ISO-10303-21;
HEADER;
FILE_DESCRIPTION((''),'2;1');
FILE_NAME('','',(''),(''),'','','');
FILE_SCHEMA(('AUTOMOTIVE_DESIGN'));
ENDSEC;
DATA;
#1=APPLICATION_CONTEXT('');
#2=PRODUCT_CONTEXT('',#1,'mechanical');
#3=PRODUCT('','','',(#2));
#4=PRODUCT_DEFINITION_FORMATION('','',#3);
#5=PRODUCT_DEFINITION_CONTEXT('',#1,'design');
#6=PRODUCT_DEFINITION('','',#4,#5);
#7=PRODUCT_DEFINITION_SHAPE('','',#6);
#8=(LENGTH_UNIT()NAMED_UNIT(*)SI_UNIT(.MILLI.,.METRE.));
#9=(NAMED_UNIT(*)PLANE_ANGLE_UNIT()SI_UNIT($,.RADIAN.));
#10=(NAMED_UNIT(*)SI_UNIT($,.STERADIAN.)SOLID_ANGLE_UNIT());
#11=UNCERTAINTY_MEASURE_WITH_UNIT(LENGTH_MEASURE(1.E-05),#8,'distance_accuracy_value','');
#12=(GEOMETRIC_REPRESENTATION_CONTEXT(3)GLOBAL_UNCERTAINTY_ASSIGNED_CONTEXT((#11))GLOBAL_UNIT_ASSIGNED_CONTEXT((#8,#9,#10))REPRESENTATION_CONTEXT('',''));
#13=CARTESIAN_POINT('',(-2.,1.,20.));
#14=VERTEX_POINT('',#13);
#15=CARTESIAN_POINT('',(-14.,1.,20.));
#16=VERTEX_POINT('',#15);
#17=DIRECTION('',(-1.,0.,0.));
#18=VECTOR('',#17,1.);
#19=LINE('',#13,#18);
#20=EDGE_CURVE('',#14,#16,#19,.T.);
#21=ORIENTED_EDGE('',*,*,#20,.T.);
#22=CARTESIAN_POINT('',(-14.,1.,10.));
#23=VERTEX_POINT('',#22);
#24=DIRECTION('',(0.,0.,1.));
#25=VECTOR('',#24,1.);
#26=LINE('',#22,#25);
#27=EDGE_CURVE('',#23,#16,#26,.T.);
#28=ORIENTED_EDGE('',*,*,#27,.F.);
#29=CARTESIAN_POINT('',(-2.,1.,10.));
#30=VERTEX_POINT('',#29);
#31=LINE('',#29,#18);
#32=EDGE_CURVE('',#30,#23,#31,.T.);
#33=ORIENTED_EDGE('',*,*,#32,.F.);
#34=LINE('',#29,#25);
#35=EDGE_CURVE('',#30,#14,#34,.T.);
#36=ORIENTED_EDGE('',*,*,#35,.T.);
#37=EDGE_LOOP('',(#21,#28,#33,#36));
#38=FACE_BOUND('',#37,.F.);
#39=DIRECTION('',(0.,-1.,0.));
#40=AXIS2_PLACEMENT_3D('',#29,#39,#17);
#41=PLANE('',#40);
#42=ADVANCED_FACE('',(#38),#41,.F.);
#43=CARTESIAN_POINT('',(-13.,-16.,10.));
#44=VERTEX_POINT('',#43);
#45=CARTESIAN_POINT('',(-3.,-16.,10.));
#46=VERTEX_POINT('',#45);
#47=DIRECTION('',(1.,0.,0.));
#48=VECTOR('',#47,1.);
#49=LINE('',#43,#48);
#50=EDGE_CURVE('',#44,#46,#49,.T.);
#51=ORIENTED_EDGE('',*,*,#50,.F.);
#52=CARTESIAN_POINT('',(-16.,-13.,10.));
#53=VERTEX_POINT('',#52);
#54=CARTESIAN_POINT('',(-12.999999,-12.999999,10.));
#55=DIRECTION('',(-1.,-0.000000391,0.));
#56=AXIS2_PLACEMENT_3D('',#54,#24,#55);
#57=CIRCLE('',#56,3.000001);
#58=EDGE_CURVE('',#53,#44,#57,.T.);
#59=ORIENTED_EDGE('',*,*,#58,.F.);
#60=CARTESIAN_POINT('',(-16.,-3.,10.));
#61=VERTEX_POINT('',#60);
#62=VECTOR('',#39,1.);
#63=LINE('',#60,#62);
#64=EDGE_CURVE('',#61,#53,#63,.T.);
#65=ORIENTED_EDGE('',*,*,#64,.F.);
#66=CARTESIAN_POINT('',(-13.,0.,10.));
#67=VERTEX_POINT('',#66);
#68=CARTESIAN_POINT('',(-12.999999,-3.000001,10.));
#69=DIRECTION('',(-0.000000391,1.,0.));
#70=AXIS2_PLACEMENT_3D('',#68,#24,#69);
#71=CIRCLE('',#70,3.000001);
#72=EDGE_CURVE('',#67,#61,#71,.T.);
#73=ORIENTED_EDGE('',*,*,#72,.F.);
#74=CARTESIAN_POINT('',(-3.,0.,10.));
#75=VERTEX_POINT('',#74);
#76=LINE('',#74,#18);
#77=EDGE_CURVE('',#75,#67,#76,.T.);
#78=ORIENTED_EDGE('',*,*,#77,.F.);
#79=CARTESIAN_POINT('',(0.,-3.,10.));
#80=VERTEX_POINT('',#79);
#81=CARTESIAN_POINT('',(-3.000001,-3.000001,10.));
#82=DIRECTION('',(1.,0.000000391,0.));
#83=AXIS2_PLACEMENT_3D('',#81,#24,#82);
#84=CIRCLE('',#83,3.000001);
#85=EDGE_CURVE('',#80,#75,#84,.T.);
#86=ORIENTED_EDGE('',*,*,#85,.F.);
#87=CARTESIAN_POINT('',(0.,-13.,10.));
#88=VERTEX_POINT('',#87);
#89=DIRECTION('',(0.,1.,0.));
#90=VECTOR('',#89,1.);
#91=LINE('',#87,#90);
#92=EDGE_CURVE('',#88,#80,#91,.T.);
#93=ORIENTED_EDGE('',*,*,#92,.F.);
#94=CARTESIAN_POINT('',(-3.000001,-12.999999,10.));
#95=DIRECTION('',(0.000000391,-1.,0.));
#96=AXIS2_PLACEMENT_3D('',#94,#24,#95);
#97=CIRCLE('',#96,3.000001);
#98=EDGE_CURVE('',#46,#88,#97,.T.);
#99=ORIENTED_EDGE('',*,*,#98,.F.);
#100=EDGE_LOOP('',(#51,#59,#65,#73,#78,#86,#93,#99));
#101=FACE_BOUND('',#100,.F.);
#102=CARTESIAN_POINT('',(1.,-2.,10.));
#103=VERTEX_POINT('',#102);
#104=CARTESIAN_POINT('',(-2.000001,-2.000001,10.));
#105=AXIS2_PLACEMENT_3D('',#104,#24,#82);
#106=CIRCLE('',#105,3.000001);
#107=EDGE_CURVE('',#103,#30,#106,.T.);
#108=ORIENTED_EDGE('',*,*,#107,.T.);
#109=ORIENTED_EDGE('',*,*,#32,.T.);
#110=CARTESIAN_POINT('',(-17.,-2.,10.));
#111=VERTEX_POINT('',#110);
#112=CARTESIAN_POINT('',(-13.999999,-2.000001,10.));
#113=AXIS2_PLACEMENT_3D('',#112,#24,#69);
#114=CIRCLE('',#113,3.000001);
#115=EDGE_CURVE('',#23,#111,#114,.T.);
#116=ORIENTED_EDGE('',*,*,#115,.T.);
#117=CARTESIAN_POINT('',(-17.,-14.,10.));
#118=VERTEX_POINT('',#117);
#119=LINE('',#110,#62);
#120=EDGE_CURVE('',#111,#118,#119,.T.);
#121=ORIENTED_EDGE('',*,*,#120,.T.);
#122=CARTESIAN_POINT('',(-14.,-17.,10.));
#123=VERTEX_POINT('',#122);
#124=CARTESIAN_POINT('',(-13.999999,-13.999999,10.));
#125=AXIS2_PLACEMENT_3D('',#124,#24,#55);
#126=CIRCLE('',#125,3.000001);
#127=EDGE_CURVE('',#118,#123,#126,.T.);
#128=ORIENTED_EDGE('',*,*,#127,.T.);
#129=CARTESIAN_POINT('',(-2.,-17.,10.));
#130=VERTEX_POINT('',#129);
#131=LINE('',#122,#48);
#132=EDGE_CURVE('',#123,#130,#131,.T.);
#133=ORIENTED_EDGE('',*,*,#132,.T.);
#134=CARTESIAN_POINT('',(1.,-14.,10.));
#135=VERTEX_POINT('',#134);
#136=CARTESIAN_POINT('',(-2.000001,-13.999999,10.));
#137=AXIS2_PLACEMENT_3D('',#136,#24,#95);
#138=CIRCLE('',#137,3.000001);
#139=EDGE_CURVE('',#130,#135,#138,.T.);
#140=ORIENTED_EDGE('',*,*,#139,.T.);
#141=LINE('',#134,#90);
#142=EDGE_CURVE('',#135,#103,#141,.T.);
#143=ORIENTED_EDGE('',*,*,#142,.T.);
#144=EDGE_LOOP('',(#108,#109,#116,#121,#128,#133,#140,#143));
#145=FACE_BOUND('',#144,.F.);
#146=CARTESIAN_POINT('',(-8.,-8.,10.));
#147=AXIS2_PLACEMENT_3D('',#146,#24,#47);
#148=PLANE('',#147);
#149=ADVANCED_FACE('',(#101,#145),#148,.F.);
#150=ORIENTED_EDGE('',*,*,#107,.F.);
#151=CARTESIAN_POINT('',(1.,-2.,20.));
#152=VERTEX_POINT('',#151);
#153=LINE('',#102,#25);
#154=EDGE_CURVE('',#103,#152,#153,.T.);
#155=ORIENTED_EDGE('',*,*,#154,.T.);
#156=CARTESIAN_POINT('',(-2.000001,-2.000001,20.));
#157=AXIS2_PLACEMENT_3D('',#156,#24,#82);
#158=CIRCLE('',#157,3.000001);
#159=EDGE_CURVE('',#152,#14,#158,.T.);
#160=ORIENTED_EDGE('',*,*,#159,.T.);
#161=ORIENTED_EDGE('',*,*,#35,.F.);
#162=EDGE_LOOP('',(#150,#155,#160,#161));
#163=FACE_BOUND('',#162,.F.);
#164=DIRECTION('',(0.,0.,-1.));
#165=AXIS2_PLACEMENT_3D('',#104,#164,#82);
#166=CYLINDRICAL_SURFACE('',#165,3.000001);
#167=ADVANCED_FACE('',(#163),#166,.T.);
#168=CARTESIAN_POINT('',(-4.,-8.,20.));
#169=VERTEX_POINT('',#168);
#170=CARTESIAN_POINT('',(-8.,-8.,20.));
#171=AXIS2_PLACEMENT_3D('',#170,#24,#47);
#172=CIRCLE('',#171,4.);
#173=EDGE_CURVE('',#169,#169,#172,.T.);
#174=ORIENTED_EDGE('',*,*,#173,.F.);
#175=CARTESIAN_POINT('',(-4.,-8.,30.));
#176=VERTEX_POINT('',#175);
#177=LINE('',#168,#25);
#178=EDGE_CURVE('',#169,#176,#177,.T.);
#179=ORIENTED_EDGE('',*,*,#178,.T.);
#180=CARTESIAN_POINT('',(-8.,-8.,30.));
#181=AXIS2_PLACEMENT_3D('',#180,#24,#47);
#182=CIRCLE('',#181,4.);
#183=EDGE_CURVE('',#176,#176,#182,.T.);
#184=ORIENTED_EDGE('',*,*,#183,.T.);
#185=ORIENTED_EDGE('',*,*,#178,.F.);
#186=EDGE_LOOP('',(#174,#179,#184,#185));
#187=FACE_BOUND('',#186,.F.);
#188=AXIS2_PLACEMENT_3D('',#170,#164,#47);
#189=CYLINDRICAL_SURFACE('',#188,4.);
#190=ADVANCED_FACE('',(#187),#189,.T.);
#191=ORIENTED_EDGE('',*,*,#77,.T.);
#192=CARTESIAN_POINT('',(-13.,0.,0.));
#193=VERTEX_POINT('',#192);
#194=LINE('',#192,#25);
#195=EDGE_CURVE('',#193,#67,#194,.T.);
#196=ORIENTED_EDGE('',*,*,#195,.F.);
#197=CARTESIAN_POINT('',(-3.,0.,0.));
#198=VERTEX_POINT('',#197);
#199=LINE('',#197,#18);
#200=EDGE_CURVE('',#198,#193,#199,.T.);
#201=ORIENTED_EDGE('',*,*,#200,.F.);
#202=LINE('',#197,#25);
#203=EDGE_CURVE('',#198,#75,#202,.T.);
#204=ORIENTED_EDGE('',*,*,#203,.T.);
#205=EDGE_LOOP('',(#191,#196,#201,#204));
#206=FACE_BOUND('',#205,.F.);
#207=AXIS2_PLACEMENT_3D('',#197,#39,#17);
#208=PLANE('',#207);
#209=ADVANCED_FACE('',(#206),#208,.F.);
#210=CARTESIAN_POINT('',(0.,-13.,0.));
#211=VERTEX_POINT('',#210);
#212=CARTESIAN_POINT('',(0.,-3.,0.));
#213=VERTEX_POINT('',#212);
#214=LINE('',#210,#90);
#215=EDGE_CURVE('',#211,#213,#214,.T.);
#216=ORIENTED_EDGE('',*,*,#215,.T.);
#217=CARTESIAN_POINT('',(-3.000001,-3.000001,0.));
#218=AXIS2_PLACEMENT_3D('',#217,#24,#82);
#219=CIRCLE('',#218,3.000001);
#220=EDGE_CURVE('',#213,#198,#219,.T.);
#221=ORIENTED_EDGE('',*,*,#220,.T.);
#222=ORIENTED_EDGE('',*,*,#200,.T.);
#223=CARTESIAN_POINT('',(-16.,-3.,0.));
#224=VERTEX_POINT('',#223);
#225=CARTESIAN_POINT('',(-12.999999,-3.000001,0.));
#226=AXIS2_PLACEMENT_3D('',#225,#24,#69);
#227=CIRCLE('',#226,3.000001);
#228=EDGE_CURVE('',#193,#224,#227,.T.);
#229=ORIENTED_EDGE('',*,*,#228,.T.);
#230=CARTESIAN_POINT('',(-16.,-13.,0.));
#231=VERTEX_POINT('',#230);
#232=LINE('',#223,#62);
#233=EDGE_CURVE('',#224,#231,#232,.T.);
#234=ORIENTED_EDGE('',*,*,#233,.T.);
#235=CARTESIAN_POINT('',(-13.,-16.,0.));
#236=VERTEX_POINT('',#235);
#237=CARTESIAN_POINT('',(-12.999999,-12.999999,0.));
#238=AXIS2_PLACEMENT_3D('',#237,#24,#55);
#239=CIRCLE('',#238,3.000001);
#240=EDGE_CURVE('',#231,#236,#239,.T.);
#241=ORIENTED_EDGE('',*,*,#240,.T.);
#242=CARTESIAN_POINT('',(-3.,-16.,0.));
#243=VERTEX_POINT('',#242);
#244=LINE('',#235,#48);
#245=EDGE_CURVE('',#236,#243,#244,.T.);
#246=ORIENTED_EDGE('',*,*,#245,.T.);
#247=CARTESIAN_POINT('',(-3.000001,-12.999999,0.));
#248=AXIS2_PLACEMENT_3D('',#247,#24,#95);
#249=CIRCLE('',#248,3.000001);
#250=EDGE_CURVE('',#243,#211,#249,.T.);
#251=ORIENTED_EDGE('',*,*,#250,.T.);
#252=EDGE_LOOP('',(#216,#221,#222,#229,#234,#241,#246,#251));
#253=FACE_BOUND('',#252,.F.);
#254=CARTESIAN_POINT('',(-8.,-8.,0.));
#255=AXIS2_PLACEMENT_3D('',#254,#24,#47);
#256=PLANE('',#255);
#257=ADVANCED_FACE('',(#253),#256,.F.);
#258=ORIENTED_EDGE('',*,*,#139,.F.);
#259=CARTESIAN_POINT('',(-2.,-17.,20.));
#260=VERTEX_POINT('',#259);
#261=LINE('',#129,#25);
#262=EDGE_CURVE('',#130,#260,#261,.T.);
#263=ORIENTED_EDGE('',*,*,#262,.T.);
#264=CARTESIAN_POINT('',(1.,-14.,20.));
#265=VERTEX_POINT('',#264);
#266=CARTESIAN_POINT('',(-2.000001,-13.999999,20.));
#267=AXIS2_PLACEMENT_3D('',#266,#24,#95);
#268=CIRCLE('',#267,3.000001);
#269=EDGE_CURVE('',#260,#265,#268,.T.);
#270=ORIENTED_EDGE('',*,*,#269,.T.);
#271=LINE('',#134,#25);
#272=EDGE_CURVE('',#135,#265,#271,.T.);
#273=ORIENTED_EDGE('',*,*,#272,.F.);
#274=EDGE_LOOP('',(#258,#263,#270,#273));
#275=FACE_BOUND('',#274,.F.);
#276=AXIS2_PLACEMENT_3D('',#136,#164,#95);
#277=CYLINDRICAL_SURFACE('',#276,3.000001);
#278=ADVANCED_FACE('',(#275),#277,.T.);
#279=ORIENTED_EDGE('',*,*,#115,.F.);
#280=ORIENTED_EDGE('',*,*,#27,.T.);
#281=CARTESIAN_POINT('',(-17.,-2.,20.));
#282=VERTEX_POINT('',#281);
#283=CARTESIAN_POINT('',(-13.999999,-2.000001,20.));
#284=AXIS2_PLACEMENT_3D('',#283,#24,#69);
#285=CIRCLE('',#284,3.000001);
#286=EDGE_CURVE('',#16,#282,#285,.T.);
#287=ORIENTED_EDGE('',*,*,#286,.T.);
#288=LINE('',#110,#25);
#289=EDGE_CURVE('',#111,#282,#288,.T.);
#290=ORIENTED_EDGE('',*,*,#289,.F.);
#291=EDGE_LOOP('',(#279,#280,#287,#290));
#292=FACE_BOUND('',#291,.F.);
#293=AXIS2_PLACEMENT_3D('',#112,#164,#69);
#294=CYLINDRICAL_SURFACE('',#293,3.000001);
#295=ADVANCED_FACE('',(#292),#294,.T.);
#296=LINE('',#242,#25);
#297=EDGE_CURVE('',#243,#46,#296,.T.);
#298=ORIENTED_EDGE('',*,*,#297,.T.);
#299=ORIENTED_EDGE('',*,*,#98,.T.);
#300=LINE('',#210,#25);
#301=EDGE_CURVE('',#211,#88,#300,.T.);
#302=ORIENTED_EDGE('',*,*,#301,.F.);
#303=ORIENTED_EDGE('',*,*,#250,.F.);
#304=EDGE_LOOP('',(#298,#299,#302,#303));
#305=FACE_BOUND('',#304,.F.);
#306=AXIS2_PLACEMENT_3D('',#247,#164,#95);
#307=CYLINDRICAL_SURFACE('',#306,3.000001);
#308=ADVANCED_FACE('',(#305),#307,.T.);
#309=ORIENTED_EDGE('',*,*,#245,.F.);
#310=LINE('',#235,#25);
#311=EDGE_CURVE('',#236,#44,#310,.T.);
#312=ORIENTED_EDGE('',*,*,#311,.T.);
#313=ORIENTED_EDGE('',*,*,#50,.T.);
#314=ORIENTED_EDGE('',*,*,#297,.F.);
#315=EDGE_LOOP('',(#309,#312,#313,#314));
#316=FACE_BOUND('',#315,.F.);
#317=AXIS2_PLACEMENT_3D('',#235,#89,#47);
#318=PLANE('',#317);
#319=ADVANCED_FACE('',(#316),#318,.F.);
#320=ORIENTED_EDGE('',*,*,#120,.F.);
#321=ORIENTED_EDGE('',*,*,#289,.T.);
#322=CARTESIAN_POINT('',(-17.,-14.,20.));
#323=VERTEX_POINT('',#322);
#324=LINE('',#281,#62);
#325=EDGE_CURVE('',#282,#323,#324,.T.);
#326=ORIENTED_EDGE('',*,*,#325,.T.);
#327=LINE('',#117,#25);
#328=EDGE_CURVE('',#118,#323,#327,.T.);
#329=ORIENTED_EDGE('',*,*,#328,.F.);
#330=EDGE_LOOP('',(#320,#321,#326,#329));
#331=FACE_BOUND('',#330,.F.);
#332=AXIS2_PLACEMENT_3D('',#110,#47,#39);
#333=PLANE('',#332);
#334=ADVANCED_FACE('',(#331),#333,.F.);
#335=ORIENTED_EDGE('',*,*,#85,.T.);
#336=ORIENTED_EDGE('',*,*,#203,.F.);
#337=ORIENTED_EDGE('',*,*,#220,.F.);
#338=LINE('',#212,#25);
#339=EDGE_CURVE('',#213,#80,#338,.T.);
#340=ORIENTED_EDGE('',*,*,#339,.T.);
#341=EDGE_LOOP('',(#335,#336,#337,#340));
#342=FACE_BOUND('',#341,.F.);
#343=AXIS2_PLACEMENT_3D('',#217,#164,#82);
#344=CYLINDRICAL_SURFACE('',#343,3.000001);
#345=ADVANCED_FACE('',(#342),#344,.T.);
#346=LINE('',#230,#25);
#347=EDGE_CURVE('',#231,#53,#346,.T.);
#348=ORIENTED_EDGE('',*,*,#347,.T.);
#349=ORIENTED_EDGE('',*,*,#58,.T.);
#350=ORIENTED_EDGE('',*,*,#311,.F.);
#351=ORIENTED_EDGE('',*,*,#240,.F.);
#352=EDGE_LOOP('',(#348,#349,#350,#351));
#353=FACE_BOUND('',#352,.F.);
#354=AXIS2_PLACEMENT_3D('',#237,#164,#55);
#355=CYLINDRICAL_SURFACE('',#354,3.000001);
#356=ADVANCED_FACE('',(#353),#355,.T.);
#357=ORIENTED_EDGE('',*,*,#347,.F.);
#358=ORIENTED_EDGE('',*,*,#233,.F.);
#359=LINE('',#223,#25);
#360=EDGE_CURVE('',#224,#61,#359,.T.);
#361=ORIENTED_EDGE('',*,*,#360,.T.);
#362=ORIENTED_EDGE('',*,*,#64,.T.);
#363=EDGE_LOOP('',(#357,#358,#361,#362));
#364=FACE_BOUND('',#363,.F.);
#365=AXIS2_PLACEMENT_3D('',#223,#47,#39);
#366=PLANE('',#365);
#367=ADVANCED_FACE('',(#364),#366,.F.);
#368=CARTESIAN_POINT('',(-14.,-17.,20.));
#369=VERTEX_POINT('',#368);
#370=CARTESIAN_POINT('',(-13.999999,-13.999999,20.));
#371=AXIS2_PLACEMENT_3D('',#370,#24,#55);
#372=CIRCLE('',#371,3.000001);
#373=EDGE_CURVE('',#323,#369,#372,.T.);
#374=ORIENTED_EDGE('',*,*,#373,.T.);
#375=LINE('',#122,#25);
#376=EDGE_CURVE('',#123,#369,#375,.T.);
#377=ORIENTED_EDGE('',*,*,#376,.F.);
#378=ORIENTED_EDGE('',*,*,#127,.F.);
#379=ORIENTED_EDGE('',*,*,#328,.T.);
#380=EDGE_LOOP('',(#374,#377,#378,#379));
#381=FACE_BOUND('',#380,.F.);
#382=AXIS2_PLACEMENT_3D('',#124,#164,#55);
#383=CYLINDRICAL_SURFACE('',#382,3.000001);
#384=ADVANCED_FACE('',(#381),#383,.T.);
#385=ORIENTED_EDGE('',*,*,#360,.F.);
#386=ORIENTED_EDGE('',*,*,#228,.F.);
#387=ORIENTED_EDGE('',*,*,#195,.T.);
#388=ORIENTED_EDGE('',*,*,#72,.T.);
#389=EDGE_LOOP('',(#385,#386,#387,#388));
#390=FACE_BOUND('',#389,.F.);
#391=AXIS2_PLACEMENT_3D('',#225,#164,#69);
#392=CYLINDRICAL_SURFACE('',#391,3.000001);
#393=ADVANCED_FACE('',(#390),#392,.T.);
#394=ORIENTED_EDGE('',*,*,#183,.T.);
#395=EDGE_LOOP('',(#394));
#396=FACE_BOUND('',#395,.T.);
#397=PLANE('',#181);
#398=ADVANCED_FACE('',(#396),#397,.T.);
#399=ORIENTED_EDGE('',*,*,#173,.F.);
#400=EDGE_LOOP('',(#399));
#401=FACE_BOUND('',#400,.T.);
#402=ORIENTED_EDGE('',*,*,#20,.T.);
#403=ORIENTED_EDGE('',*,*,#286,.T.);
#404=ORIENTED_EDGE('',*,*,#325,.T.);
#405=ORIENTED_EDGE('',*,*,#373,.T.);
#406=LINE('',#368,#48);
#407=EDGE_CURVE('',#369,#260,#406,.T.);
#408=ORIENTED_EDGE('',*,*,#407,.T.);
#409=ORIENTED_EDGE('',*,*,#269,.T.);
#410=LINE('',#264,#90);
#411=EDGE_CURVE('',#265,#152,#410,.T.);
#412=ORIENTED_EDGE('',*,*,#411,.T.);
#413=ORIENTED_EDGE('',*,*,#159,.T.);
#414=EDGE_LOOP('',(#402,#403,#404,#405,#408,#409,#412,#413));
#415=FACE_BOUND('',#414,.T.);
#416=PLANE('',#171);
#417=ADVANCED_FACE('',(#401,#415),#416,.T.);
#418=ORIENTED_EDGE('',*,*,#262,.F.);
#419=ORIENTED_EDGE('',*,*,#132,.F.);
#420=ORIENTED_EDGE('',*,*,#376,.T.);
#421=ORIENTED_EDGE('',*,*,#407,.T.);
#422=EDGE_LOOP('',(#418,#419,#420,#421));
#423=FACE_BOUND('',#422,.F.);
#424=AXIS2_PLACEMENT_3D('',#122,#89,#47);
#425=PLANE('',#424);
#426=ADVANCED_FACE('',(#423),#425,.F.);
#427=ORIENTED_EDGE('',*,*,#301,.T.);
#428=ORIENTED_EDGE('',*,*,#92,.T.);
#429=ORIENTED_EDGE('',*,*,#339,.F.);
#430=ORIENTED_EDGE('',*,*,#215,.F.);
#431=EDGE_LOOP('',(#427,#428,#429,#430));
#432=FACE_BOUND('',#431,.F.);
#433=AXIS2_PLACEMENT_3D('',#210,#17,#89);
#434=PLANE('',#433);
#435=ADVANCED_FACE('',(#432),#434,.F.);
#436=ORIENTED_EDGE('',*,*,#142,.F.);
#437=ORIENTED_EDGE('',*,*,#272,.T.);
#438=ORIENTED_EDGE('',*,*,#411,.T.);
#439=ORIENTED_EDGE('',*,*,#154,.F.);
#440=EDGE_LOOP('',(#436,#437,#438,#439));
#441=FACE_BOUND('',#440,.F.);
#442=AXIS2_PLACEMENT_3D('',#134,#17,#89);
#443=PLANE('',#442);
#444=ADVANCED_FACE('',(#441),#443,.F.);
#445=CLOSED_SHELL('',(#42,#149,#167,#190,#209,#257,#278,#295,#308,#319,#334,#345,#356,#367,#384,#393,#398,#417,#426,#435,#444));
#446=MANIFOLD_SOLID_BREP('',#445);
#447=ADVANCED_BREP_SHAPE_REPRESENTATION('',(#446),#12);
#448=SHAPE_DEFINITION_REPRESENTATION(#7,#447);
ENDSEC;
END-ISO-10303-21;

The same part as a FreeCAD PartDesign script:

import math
import FreeCAD as App
import Part
import Sketcher
from FreeCAD import Vector

doc = App.newDocument("Part")
body = doc.addObject("PartDesign::Body", "Body")

# Sketch on XY plane
sketch1 = doc.addObject("Sketcher::SketchObject", "Sketch")
body.addObject(sketch1)
sketch1.AttachmentSupport = (doc.XY_Plane, [""])
sketch1.MapMode = "FlatFace"
sketch1.addGeometry([
    Part.ArcOfCircle(Part.Circle(Vector(-3.000001, -3.000001, 0), Vector(0, 0, 1), 3.000001), math.radians(0.000022), math.radians(89.999978)),  # 0
    Part.LineSegment(Vector(-3, 0, 0), Vector(-13, 0, 0)),  # 1
    Part.ArcOfCircle(Part.Circle(Vector(-12.999999, -3.000001, 0), Vector(0, 0, 1), 3.000001), math.radians(90.000022), math.radians(179.999978)),  # 2
    Part.LineSegment(Vector(-16, -3, 0), Vector(-16, -13, 0)),  # 3
    Part.ArcOfCircle(Part.Circle(Vector(-12.999999, -12.999999, 0), Vector(0, 0, 1), 3.000001), math.radians(-179.999978), math.radians(-90.000022)),  # 4
    Part.LineSegment(Vector(-13, -16, 0), Vector(-3, -16, 0)),  # 5
    Part.ArcOfCircle(Part.Circle(Vector(-3.000001, -12.999999, 0), Vector(0, 0, 1), 3.000001), math.radians(-89.999978), math.radians(-0.000022)),  # 6
    Part.LineSegment(Vector(0, -13, 0), Vector(0, -3, 0)),  # 7
], False)
sketch1.addConstraint([
    Sketcher.Constraint("Tangent", 0, 2, 1, 1),
    Sketcher.Constraint("Tangent", 1, 2, 2, 1),
    Sketcher.Constraint("Tangent", 2, 2, 3, 1),
    Sketcher.Constraint("Tangent", 3, 2, 4, 1),
    Sketcher.Constraint("Tangent", 4, 2, 5, 1),
    Sketcher.Constraint("Tangent", 5, 2, 6, 1),
    Sketcher.Constraint("Tangent", 6, 2, 7, 1),
    Sketcher.Constraint("Tangent", 7, 2, 0, 1),
    Sketcher.Constraint("Horizontal", 1),
    Sketcher.Constraint("Vertical", 3),
    Sketcher.Constraint("Horizontal", 5),
    Sketcher.Constraint("Vertical", 7),
    Sketcher.Constraint("Equal", 0, 2),
    Sketcher.Constraint("Equal", 2, 4),
    Sketcher.Constraint("Equal", 4, 6),
    Sketcher.Constraint("PointOnObject", 0, 2, -1),
    Sketcher.Constraint("PointOnObject", 6, 2, -2),
    Sketcher.Constraint("Equal", 5, 3),
    Sketcher.Constraint("Radius", 0, 3.000001),
    Sketcher.Constraint("DistanceX", 1, 2, 1, 1, 10.0),
])
pad1 = doc.addObject("PartDesign::Pad", "Pad")
body.addObject(pad1)
pad1.Profile = sketch1
pad1.Length = 10

# Sketch on XY plane
sketch2 = doc.addObject("Sketcher::SketchObject", "Sketch001")
body.addObject(sketch2)
sketch2.AttachmentSupport = (doc.XY_Plane, [""])
sketch2.MapMode = "FlatFace"
sketch2.AttachmentOffset = App.Placement(Vector(0, 0, 10), App.Rotation())
sketch2.addGeometry([
    Part.LineSegment(Vector(-2, 1, 0), Vector(-14, 1, 0)),  # 0
    Part.ArcOfCircle(Part.Circle(Vector(-13.999999, -2.000001, 0), Vector(0, 0, 1), 3.000001), math.radians(90.000022), math.radians(179.999978)),  # 1
    Part.LineSegment(Vector(-17, -2, 0), Vector(-17, -14, 0)),  # 2
    Part.ArcOfCircle(Part.Circle(Vector(-13.999999, -13.999999, 0), Vector(0, 0, 1), 3.000001), math.radians(-179.999978), math.radians(-90.000022)),  # 3
    Part.LineSegment(Vector(-14, -17, 0), Vector(-2, -17, 0)),  # 4
    Part.ArcOfCircle(Part.Circle(Vector(-2.000001, -13.999999, 0), Vector(0, 0, 1), 3.000001), math.radians(-89.999978), math.radians(-0.000022)),  # 5
    Part.LineSegment(Vector(1, -14, 0), Vector(1, -2, 0)),  # 6
    Part.ArcOfCircle(Part.Circle(Vector(-2.000001, -2.000001, 0), Vector(0, 0, 1), 3.000001), math.radians(0.000022), math.radians(89.999978)),  # 7
], False)
sketch2.addConstraint([
    Sketcher.Constraint("Tangent", 0, 2, 1, 1),
    Sketcher.Constraint("Tangent", 1, 2, 2, 1),
    Sketcher.Constraint("Tangent", 2, 2, 3, 1),
    Sketcher.Constraint("Tangent", 3, 2, 4, 1),
    Sketcher.Constraint("Tangent", 4, 2, 5, 1),
    Sketcher.Constraint("Tangent", 5, 2, 6, 1),
    Sketcher.Constraint("Tangent", 6, 2, 7, 1),
    Sketcher.Constraint("Tangent", 7, 2, 0, 1),
    Sketcher.Constraint("Horizontal", 0),
    Sketcher.Constraint("Vertical", 2),
    Sketcher.Constraint("Horizontal", 4),
    Sketcher.Constraint("Vertical", 6),
    Sketcher.Constraint("Equal", 1, 3),
    Sketcher.Constraint("Equal", 3, 5),
    Sketcher.Constraint("Equal", 5, 7),
    Sketcher.Constraint("Equal", 4, 2),
    Sketcher.Constraint("Radius", 1, 3.000001),
    Sketcher.Constraint("DistanceX", 0, 2, 0, 1, 12.0),
    Sketcher.Constraint("DistanceX", 1, 3, -1, 1, 13.999999),
    Sketcher.Constraint("DistanceY", 1, 3, -1, 1, 2.000001),
])
pad2 = doc.addObject("PartDesign::Pad", "Pad001")
body.addObject(pad2)
pad2.Profile = sketch2
pad2.Length = 10

# Sketch on XY plane
sketch3 = doc.addObject("Sketcher::SketchObject", "Sketch002")
body.addObject(sketch3)
sketch3.AttachmentSupport = (doc.XY_Plane, [""])
sketch3.MapMode = "FlatFace"
sketch3.AttachmentOffset = App.Placement(Vector(0, 0, 20), App.Rotation())
sketch3.addGeometry(Part.Circle(Vector(-8, -8, 0), Vector(0, 0, 1), 4), False)
sketch3.addConstraint([
    Sketcher.Constraint("Diameter", 0, 8.0),
    Sketcher.Constraint("DistanceX", 0, 3, -1, 1, 8.0),
    Sketcher.Constraint("DistanceY", 0, 3, -1, 1, 8.0),
])
pad3 = doc.addObject("PartDesign::Pad", "Pad002")
body.addObject(pad3)
pad3.Profile = sketch3
pad3.Length = 10

doc.recompute()
